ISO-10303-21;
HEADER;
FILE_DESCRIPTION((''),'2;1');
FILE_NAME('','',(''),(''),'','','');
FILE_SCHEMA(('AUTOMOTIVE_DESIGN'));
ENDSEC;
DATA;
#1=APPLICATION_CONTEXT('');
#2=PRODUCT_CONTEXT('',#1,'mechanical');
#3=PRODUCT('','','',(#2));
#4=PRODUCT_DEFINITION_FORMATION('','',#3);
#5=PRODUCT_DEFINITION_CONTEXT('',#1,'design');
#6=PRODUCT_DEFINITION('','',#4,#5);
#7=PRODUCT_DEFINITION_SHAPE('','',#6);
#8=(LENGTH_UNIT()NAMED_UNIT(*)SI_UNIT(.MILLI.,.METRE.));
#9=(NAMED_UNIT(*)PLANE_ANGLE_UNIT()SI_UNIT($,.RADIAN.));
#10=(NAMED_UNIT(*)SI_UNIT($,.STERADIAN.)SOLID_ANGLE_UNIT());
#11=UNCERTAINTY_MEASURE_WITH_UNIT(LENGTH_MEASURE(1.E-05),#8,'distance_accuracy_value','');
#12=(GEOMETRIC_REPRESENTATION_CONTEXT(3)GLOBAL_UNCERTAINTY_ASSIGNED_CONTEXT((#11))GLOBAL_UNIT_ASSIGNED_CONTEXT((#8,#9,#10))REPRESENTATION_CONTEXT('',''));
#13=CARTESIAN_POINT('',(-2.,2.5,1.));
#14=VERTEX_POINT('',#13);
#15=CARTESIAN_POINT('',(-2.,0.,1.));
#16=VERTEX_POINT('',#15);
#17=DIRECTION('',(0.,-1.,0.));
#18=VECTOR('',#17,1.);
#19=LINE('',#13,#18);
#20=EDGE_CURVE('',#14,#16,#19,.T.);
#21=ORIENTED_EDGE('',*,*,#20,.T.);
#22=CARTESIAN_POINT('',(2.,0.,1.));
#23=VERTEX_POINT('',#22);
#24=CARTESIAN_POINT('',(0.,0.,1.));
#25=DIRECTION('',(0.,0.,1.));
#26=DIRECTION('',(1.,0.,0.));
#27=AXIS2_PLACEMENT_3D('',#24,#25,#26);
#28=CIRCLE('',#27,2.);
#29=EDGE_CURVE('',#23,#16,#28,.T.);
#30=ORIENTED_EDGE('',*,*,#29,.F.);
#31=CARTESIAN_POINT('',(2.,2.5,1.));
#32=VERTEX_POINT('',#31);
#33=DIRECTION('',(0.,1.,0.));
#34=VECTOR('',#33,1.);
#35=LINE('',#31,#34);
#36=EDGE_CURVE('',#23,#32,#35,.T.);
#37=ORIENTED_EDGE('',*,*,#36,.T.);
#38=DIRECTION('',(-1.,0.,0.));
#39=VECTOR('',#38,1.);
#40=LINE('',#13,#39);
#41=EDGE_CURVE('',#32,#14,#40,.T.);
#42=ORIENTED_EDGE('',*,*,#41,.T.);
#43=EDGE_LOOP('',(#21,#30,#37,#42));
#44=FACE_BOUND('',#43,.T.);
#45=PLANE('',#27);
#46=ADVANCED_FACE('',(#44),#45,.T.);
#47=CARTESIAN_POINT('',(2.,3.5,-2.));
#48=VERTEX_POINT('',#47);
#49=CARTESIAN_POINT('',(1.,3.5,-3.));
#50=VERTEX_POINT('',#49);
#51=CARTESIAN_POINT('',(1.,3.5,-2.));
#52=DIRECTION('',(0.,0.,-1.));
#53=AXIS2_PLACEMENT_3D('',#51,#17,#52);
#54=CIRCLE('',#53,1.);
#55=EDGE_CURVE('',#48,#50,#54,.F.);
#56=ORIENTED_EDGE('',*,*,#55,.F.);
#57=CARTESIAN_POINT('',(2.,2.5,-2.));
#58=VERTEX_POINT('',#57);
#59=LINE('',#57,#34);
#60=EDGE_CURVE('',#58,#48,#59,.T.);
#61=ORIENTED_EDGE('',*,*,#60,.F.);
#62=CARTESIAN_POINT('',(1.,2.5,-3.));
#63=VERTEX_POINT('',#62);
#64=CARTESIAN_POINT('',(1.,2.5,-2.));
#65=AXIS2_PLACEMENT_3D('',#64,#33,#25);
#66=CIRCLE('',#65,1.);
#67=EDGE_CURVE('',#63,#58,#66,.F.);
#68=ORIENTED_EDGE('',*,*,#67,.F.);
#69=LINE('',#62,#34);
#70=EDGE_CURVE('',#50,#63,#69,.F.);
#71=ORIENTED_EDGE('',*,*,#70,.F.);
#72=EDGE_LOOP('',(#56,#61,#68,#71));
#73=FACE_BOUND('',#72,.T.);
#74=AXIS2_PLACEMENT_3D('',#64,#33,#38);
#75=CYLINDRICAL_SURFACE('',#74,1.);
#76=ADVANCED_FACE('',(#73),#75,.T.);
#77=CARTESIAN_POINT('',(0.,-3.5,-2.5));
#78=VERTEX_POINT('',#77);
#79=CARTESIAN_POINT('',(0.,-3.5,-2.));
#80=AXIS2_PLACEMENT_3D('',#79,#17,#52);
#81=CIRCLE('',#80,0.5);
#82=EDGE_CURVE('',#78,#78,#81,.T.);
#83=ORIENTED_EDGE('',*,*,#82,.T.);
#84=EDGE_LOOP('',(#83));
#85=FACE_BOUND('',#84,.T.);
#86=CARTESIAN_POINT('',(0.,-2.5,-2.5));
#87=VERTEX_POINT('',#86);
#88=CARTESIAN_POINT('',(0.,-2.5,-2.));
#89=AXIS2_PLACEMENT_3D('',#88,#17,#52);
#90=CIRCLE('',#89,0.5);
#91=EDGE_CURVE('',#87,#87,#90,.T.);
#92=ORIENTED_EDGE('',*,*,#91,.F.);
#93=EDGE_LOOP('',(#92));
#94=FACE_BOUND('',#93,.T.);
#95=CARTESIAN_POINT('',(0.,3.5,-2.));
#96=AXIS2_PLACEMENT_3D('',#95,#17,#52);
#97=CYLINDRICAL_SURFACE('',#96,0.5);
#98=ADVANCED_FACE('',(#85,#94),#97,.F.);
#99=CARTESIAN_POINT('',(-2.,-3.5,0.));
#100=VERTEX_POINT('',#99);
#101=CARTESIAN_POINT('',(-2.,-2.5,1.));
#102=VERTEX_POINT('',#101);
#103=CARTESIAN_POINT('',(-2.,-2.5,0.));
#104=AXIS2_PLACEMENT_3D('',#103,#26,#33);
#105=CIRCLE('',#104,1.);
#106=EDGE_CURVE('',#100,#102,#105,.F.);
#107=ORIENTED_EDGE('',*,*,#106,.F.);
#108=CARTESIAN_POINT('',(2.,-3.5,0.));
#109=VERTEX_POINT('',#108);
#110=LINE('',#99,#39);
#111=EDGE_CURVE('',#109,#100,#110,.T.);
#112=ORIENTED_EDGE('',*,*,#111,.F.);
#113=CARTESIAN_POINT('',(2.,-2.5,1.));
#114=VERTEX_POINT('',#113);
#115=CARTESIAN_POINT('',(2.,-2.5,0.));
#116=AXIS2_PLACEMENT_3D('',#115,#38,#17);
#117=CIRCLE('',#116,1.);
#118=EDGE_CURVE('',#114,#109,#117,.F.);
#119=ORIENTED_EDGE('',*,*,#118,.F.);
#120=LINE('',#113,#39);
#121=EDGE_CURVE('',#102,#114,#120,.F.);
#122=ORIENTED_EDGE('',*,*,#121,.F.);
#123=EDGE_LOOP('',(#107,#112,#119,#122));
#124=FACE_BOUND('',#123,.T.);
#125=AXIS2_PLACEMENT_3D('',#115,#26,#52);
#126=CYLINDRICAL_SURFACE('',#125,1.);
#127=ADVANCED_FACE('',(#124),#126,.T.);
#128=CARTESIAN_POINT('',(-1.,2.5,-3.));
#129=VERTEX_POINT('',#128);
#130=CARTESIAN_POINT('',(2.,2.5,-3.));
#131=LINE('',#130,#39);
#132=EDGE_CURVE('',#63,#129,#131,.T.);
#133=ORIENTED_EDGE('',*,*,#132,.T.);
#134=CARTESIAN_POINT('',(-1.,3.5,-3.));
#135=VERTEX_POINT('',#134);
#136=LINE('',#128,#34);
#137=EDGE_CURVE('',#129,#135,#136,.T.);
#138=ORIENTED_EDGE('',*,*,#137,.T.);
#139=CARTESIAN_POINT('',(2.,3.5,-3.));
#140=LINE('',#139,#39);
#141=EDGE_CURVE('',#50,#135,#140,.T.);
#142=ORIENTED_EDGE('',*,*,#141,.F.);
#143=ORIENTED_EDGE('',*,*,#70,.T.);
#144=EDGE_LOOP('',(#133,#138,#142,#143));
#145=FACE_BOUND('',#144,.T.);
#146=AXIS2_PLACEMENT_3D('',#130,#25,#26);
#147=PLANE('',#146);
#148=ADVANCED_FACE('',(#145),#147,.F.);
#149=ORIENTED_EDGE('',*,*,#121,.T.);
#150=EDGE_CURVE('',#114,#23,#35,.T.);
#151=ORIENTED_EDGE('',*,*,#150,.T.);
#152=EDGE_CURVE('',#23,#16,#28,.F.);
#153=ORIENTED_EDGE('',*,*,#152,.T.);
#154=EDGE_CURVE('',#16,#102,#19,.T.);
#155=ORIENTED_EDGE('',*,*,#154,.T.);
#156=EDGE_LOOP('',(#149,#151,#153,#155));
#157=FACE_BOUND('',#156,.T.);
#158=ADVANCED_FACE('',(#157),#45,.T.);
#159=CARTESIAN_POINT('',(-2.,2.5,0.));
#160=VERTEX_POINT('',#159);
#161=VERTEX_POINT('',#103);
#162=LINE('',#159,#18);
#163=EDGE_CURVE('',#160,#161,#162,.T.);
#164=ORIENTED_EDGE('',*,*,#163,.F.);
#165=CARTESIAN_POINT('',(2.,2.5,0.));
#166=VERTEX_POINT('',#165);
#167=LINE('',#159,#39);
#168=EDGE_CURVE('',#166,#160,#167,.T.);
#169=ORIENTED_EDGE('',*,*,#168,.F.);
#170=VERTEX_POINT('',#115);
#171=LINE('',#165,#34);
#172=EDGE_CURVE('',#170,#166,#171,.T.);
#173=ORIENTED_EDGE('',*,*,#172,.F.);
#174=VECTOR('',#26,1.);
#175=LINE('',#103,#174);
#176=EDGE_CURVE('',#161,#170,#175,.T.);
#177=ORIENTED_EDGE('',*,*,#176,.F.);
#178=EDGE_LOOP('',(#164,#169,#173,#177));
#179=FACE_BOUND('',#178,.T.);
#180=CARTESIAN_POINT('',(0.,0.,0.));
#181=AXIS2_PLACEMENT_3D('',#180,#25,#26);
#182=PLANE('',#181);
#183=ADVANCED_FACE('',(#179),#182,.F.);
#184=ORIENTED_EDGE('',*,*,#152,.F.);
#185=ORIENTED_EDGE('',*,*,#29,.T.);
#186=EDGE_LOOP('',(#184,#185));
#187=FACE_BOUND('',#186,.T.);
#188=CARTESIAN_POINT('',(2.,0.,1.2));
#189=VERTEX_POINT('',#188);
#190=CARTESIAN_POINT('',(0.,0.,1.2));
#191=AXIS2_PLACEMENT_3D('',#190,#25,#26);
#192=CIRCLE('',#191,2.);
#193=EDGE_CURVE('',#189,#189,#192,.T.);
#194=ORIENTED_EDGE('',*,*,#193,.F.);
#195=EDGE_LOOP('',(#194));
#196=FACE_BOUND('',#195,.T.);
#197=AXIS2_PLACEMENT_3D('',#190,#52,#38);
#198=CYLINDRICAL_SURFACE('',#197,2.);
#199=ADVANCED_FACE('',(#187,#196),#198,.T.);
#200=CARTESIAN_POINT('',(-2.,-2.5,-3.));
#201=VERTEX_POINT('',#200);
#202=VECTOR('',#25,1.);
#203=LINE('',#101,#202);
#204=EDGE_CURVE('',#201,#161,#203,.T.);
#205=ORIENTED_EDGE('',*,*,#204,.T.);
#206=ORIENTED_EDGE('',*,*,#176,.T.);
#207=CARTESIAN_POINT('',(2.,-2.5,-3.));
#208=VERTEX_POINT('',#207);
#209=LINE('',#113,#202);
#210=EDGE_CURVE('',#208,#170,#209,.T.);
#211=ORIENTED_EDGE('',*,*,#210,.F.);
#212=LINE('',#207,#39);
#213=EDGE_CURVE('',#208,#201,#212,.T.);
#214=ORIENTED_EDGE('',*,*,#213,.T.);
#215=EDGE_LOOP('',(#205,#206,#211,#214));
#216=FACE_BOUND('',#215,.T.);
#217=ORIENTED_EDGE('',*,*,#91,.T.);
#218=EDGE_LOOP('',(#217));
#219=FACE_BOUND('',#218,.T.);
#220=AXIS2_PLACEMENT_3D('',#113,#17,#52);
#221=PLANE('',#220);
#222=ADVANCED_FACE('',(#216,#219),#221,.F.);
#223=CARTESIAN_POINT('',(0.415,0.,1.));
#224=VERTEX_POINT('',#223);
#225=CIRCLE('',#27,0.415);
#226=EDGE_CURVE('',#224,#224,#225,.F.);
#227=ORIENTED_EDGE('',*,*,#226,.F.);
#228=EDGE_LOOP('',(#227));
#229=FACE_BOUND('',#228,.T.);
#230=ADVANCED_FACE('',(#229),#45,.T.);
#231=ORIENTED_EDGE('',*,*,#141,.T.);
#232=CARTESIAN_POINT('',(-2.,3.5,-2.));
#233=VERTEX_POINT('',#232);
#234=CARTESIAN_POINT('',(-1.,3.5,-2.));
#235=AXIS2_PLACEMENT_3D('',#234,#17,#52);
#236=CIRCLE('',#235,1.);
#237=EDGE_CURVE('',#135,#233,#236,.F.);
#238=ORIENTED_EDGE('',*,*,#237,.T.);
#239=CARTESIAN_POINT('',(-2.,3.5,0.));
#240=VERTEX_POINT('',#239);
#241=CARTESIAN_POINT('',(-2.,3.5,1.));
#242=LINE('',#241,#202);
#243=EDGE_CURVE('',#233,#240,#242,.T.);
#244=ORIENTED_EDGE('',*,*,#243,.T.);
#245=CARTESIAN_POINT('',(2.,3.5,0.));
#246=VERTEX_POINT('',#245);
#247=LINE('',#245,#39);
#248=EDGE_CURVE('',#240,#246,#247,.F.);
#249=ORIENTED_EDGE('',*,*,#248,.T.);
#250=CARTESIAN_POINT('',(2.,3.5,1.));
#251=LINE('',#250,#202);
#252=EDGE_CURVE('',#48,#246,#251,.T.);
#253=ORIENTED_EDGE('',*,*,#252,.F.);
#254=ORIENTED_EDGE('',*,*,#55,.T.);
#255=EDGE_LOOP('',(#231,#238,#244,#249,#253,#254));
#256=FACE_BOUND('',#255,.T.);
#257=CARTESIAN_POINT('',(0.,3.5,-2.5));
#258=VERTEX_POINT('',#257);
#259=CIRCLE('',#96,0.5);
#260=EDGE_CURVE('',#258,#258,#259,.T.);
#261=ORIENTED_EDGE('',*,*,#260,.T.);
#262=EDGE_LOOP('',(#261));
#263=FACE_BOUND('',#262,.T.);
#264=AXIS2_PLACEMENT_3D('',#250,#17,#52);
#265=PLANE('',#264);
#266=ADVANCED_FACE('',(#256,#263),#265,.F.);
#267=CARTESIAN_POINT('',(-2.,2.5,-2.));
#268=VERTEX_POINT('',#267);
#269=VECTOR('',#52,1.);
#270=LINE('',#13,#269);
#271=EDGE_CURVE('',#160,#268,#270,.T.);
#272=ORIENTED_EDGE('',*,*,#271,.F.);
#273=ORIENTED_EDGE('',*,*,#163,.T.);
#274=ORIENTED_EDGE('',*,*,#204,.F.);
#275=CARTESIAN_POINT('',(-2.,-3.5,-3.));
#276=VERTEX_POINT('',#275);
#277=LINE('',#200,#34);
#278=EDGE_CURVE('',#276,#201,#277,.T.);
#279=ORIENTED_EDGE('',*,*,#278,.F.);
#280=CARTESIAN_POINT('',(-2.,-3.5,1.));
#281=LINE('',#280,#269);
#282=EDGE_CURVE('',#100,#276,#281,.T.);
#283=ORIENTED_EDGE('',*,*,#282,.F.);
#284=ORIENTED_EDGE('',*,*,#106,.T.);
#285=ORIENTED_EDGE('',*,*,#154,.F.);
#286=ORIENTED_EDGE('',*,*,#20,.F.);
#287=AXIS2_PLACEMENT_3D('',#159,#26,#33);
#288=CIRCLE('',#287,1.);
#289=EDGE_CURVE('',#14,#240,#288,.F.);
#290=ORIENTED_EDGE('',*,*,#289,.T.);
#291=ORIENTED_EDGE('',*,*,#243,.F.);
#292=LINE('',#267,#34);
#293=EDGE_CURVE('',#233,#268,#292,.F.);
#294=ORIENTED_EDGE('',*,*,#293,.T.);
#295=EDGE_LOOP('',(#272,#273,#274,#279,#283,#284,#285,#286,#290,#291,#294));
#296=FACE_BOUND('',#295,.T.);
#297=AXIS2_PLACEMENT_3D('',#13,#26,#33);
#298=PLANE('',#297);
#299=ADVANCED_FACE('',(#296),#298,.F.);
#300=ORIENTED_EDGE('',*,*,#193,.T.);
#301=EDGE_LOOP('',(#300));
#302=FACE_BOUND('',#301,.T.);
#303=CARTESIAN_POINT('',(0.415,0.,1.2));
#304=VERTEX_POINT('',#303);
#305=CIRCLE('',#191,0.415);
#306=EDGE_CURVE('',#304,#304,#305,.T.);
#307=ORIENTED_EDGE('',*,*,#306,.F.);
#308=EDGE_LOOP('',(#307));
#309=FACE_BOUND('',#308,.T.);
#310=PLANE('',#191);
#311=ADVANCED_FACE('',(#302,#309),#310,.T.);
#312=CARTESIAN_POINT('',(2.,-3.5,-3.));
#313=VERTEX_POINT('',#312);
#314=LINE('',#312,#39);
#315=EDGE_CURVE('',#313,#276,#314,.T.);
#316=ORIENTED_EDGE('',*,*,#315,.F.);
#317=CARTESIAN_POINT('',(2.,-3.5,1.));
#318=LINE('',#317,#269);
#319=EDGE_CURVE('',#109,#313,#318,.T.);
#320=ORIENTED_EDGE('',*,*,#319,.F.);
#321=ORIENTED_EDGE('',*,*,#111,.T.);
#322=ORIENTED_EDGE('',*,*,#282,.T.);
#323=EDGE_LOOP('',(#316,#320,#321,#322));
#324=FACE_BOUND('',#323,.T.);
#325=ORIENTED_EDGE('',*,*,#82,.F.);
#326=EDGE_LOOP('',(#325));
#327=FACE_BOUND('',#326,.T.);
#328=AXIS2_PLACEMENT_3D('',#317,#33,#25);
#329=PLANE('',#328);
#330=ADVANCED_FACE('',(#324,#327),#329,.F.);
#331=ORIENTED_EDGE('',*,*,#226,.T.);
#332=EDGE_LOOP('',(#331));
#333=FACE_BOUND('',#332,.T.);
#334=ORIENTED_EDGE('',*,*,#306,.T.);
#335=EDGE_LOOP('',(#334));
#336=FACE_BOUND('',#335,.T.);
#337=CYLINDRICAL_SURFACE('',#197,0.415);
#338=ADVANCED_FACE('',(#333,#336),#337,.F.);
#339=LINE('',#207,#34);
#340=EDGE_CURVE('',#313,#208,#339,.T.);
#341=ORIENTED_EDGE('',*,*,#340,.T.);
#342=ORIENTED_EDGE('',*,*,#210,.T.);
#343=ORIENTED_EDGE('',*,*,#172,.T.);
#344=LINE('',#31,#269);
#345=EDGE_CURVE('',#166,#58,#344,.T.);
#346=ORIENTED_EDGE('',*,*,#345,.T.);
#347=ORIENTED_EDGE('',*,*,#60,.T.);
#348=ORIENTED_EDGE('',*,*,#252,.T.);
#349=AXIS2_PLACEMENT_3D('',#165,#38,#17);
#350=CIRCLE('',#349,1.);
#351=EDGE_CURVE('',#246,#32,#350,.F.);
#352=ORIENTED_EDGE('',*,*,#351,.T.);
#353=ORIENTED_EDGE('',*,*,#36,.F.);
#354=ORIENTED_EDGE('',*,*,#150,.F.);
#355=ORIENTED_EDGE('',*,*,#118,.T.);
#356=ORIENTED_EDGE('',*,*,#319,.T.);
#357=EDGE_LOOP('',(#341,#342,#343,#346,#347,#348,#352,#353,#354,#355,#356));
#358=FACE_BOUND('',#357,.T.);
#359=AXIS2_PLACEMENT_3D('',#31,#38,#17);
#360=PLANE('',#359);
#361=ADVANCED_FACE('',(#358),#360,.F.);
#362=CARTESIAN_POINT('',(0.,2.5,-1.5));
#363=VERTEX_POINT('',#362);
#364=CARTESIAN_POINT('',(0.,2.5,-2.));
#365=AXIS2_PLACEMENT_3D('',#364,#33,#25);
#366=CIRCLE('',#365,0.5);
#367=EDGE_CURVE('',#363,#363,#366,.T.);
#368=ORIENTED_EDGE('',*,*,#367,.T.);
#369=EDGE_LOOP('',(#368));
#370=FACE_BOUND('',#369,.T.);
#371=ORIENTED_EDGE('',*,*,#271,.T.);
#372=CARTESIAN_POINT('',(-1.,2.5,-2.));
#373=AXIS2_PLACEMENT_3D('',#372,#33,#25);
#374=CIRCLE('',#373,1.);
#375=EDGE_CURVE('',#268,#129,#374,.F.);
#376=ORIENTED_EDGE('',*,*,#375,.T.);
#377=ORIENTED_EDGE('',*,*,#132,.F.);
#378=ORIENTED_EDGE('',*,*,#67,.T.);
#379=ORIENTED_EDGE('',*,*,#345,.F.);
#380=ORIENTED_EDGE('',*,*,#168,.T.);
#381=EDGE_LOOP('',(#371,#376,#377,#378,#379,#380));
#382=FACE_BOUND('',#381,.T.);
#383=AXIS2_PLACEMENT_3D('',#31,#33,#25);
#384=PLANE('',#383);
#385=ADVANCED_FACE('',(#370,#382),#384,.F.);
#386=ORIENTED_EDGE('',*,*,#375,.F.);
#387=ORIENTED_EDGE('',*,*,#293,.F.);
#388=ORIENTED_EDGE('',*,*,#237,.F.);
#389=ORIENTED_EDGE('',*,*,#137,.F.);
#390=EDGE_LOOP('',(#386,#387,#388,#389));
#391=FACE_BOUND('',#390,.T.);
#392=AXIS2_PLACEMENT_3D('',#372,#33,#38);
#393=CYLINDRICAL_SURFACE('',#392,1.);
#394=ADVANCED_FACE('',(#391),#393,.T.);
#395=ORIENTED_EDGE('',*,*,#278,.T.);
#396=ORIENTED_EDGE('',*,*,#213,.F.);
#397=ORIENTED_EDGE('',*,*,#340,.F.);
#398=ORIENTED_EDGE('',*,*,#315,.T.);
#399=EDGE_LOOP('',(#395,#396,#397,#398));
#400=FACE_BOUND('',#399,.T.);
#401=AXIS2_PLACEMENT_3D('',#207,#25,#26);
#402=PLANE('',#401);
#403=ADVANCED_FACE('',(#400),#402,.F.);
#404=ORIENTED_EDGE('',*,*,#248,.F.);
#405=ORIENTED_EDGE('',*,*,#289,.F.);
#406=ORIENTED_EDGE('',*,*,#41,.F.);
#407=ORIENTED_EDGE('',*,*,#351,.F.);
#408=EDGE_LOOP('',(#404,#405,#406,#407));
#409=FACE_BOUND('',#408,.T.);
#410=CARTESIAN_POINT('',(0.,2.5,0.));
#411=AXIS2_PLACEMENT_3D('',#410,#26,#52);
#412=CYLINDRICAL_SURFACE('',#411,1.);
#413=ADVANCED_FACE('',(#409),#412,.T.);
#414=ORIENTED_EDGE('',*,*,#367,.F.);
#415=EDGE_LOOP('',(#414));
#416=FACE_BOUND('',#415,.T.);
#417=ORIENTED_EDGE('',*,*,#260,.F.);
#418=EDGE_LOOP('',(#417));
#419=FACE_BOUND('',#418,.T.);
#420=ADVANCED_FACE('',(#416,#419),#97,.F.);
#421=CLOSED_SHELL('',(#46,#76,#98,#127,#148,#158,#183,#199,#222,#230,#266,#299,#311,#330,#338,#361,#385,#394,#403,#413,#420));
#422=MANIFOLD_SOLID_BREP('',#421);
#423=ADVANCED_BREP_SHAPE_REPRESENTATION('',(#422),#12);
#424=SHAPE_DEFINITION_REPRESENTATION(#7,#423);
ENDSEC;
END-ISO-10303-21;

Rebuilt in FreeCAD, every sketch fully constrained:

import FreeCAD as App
import Part
import Sketcher
Q = App.Units.Quantity


def edges_at(feature, points):
    """Names of the edges that pass closest to the given points."""
    edges = feature.Shape.Edges
    near = lambda p: min(range(len(edges)), key=lambda i: edges[i].distToShape(Part.Vertex(*p))[0])
    return sorted({f"Edge{near(p) + 1}" for p in points})


def add_polygon(sketch, points):
    """Adds a closed chain of lines whose ends are joined by coincident constraints."""
    first, n = sketch.GeometryCount, len(points)
    for a, b in zip(points, points[1:] + points[:1]):
        sketch.addGeometry(Part.LineSegment(App.Vector(*a, 0), App.Vector(*b, 0)), False)
    for i in range(n):
        sketch.addConstraint(Sketcher.Constraint("Coincident", first + i, 2, first + (i + 1) % n, 1))

doc = App.newDocument("Part")
body = doc.addObject("PartDesign::Body", "Body")

# Sketch on XY plane
sketch1 = doc.addObject("Sketcher::SketchObject", "Sketch")
body.addObject(sketch1)
sketch1.AttachmentSupport = (doc.XY_Plane, [""])
sketch1.MapMode = "FlatFace"
add_polygon(sketch1, [(-2, 2.5), (-2, -2.5), (2, -2.5), (2, 2.5)])  # lines 0-3
sketch1.addConstraint([
    Sketcher.Constraint("Vertical", 0),
    Sketcher.Constraint("Horizontal", 1),
    Sketcher.Constraint("Vertical", 2),
    Sketcher.Constraint("Horizontal", 3),
    Sketcher.Constraint("Symmetric", 0, 2, 2, 2, -1, 1),
    Sketcher.Constraint("DistanceX", 1, 1, 1, 2, Q("4 mm")),
    Sketcher.Constraint("DistanceY", 0, 2, 0, 1, Q("5 mm")),
])
pad1 = doc.addObject("PartDesign::Pad", "Pad")
body.addObject(pad1)
pad1.Profile = sketch1
pad1.Length = 1

# Sketch on YZ plane
sketch2 = doc.addObject("Sketcher::SketchObject", "Sketch001")
body.addObject(sketch2)
sketch2.AttachmentSupport = (doc.YZ_Plane, [""])
sketch2.MapMode = "FlatFace"
add_polygon(sketch2, [(3.5, 1), (2.5, 1), (2.5, -3), (3.5, -3)])  # lines 0-3
add_polygon(sketch2, [(-2.5, 1), (-3.5, 1), (-3.5, -3), (-2.5, -3)])  # lines 4-7
sketch2.addConstraint([
    Sketcher.Constraint("Horizontal", 0),
    Sketcher.Constraint("Vertical", 1),
    Sketcher.Constraint("Horizontal", 2),
    Sketcher.Constraint("Vertical", 3),
    Sketcher.Constraint("Horizontal", 4),
    Sketcher.Constraint("Vertical", 5),
    Sketcher.Constraint("Horizontal", 6),
    Sketcher.Constraint("Vertical", 7),
    Sketcher.Constraint("Symmetric", 3, 2, 4, 2, -2),
    Sketcher.Constraint("Symmetric", 1, 2, 6, 2, -2),
    Sketcher.Constraint("DistanceX", 0, 2, 0, 1, Q("1 mm")),
    Sketcher.Constraint("DistanceY", 1, 2, 1, 1, Q("4 mm")),
    Sketcher.Constraint("DistanceY", -1, 1, 0, 2, Q("1 mm")),
    Sketcher.Constraint("DistanceX", 4, 2, 0, 2, Q("6 mm")),
])
pad2 = doc.addObject("PartDesign::Pad", "Pad001")
body.addObject(pad2)
pad2.Profile = sketch2
pad2.Length = 4
pad2.Midplane = True
doc.recompute()

fillet = doc.addObject("PartDesign::Fillet", "Fillet")
body.addObject(fillet)
fillet.Base = (pad2, edges_at(pad2, [
    (0, 3.5, 1),
    (-2, 3, -3),
    (2, 3, -3),
    (0, -3.5, 1),
]))
fillet.Radius = 1

# Sketch on XY plane
sketch3 = doc.addObject("Sketcher::SketchObject", "Sketch002")
body.addObject(sketch3)
sketch3.AttachmentSupport = (doc.XY_Plane, [""])
sketch3.MapMode = "FlatFace"
sketch3.AttachmentOffset = App.Placement(App.Vector(0, 0, 1), App.Rotation())
sketch3.addGeometry([
    Part.Circle(App.Vector(0, 0, 0), App.Vector(0, 0, 1), 2),
    Part.Circle(App.Vector(0, 0, 0), App.Vector(0, 0, 1), 0.41),
], False)
sketch3.addConstraint([
    Sketcher.Constraint("Coincident", 0, 3, -1, 1),
    Sketcher.Constraint("Coincident", 1, 3, -1, 1),
    Sketcher.Constraint("Diameter", 0, Q("4 mm")),
    Sketcher.Constraint("Diameter", 1, Q("0.83 mm")),
])
pad3 = doc.addObject("PartDesign::Pad", "Pad002")
body.addObject(pad3)
pad3.Profile = sketch3
pad3.Length = 0.2

# Sketch on XZ plane
sketch4 = doc.addObject("Sketcher::SketchObject", "Sketch003")
body.addObject(sketch4)
sketch4.AttachmentSupport = (doc.XZ_Plane, [""])
sketch4.MapMode = "FlatFace"
sketch4.AttachmentOffset = App.Placement(App.Vector(0, 0, 3.5), App.Rotation())
sketch4.addGeometry(Part.Circle(App.Vector(0, -2, 0), App.Vector(0, 0, 1), 0.5), False)
sketch4.addConstraint([
    Sketcher.Constraint("PointOnObject", 0, 3, -2),
    Sketcher.Constraint("Diameter", 0, Q("1 mm")),
    Sketcher.Constraint("DistanceY", 0, 3, -1, 1, Q("2 mm")),
])
pocket1 = doc.addObject("PartDesign::Pocket", "Pocket")
body.addObject(pocket1)
pocket1.Profile = sketch4
pocket1.Type = "ThroughAll"

doc.recompute()
